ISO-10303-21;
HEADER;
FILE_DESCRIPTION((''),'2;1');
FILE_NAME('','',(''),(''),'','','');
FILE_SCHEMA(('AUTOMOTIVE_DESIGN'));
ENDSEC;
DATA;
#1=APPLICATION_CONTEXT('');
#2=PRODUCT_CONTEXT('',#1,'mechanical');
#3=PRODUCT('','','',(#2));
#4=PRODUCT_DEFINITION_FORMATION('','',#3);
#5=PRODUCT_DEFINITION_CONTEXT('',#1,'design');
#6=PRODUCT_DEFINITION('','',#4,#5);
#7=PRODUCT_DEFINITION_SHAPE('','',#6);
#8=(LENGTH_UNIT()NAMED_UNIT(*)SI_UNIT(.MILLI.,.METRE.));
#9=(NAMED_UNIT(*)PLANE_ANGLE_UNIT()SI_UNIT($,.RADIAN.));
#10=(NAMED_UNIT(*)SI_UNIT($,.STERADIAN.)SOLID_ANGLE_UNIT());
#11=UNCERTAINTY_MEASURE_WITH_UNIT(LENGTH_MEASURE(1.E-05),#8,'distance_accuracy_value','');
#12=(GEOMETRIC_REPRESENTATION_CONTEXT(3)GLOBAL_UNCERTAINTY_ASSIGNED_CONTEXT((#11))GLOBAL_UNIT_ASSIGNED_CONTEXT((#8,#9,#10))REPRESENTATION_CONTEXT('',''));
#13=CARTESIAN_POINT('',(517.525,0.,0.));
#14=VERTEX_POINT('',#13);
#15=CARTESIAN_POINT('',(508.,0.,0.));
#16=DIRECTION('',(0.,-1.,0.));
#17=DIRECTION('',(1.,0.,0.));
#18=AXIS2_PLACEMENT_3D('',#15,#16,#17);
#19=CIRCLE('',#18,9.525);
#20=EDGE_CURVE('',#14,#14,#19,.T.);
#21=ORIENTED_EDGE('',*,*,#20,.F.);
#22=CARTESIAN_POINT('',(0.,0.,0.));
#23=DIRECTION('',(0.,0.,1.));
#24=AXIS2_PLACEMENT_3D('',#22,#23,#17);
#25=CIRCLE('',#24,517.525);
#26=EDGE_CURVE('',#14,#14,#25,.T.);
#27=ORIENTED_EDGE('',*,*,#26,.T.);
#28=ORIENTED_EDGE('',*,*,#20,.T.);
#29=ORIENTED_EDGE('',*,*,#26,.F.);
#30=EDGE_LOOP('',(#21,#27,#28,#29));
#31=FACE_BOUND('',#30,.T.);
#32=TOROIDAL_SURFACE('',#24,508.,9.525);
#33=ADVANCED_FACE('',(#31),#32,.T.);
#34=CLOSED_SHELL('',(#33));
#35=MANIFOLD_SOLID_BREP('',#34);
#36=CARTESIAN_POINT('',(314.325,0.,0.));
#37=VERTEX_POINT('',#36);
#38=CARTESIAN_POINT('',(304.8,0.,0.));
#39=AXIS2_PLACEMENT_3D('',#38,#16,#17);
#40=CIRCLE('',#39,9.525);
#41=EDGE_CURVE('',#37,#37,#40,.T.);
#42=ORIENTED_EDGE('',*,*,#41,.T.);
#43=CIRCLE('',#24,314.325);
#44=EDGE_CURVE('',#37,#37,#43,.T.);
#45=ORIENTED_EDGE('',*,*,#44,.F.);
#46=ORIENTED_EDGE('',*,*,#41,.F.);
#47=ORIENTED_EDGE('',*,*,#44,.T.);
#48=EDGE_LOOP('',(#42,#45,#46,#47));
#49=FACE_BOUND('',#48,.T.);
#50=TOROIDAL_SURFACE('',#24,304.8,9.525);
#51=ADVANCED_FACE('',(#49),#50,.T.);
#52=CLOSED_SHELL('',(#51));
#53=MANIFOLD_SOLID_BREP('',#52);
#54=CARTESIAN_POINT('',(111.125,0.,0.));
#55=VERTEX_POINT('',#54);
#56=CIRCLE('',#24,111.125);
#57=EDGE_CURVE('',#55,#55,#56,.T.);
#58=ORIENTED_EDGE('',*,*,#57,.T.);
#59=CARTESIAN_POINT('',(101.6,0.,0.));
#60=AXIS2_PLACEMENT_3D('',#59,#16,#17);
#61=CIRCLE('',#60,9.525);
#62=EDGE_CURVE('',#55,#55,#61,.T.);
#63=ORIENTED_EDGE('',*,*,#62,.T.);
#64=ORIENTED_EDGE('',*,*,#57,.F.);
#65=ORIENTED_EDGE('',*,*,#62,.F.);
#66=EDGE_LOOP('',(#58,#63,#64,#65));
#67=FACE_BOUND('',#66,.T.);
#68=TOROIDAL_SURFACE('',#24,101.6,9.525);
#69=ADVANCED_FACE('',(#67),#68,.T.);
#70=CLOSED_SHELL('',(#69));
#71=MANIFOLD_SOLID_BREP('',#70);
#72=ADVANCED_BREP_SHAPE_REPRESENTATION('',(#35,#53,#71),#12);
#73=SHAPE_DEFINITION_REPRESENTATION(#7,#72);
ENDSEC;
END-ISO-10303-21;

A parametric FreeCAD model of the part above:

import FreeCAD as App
import Part
import Sketcher

V = App.Vector
Q = App.Units.Quantity

doc = App.newDocument("Part")
body = doc.addObject("PartDesign::Body", "Body")
body.AllowCompound = True

# Sketch on XZ plane
sketch1 = body.newObject("Sketcher::SketchObject", "Sketch")
sketch1.AttachmentSupport = (doc.getObject("XZ_Plane"), [""])
sketch1.MapMode = "FlatFace"
sketch1.addGeometry([
    Part.Circle(V(101.6, 0, 0), V(0, 0, 1), 9.525),
    Part.Circle(V(304.8, 0, 0), V(0, 0, 1), 9.525),
    Part.Circle(V(508, 0, 0), V(0, 0, 1), 9.525),
], False)
sketch1.addConstraint([
    Sketcher.Constraint("Equal", 0, 1),
    Sketcher.Constraint("Equal", 1, 2),
    Sketcher.Constraint("PointOnObject", 0, 3, -1),
    Sketcher.Constraint("PointOnObject", 1, 3, -1),
    Sketcher.Constraint("PointOnObject", 2, 3, -1),
    Sketcher.Constraint("Diameter", 0, Q("0.75 in")),
    Sketcher.Constraint("DistanceX", -1, 1, 0, 3, Q("4 in")),
    Sketcher.Constraint("DistanceX", -1, 1, 1, 3, Q("12 in")),
    Sketcher.Constraint("DistanceX", -1, 1, 2, 3, Q("20 in")),
])
revolution = body.newObject("PartDesign::Revolution", "Revolution")
revolution.Profile = sketch1
revolution.ReferenceAxis = (sketch1, ["V_Axis"])
revolution.Angle = 360

doc.recompute()
